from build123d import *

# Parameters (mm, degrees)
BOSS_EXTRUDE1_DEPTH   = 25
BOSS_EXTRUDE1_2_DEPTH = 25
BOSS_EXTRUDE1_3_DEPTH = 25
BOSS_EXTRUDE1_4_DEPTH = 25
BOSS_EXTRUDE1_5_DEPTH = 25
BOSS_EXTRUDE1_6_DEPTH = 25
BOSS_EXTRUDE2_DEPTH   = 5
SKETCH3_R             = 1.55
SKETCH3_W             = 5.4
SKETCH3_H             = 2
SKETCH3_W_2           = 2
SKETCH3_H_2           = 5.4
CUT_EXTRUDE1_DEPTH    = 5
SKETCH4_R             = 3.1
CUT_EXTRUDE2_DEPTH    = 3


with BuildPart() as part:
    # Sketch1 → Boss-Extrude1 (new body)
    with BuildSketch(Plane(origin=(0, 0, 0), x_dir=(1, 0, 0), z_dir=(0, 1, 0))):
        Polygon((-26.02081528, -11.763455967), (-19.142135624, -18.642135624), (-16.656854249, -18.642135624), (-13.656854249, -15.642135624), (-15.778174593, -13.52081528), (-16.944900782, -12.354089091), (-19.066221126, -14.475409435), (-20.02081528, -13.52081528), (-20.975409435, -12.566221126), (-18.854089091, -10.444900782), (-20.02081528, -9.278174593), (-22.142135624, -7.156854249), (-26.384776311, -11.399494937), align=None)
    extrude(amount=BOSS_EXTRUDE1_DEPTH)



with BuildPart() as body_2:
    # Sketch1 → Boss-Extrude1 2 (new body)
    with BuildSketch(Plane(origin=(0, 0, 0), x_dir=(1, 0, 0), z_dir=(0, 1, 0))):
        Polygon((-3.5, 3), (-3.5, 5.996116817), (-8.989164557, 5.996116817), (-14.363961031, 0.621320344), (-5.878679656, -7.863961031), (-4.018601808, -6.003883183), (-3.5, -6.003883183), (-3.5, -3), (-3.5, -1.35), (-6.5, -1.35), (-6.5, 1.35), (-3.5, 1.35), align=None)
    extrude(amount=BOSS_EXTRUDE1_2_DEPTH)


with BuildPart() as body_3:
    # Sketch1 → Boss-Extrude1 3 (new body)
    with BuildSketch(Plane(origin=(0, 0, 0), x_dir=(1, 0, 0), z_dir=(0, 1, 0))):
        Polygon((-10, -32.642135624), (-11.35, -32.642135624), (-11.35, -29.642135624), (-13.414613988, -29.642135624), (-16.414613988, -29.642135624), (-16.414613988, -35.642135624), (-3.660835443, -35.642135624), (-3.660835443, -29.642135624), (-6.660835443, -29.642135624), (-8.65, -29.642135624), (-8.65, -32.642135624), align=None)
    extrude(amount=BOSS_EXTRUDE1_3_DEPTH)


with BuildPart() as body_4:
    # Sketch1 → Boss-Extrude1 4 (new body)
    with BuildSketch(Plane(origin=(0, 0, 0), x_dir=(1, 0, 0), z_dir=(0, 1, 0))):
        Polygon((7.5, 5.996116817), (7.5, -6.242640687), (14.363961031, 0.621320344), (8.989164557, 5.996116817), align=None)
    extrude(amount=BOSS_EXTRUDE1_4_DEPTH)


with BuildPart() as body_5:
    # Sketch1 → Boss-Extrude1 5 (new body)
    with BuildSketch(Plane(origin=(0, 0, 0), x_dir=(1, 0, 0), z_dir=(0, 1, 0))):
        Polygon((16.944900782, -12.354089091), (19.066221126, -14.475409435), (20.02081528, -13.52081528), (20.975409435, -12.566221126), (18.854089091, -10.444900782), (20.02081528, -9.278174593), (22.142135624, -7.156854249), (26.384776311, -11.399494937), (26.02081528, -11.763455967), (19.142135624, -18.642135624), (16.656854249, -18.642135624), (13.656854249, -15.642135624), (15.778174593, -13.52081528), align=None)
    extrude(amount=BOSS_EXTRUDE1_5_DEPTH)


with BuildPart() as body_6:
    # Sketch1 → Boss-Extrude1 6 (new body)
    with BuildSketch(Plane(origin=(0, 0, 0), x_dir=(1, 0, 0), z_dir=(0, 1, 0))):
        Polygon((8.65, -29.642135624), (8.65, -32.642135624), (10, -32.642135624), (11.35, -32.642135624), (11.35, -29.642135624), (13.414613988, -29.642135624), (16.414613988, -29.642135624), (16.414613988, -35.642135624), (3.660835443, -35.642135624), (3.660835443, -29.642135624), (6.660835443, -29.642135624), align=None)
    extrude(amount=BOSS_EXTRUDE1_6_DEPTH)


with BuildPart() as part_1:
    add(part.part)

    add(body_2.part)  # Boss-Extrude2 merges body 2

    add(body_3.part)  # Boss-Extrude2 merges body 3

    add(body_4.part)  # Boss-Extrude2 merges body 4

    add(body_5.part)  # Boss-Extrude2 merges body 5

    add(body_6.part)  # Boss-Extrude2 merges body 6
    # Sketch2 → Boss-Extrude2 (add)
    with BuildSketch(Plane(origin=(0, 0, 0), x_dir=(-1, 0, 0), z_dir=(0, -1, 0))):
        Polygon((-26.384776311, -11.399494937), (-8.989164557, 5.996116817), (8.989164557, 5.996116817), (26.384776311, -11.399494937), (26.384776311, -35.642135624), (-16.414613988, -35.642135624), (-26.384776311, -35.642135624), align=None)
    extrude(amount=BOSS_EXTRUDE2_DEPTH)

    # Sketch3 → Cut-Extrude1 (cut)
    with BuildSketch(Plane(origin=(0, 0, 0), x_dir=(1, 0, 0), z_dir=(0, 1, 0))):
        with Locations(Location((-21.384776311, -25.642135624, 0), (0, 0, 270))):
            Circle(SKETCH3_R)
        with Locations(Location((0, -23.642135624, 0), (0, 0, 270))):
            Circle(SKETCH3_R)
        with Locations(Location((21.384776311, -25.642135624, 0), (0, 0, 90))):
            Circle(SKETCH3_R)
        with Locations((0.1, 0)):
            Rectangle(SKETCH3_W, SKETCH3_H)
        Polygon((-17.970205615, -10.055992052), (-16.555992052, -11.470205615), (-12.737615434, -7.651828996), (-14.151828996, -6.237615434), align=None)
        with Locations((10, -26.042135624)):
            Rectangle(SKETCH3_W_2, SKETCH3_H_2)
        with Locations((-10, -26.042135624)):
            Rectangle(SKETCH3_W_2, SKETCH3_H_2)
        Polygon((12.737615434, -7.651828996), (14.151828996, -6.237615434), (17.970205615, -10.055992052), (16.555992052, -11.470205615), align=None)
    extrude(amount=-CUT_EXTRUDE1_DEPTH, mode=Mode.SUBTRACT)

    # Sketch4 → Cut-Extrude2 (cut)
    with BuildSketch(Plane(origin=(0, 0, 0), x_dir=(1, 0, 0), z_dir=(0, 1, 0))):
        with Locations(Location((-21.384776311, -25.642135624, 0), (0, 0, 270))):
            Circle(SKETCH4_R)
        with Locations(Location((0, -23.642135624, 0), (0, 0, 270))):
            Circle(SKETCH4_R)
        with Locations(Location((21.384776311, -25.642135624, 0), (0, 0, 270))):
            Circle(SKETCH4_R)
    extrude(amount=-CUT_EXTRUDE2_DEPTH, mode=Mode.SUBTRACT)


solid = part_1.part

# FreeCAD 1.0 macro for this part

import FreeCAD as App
import Part
import Sketcher
Q = App.Units.Quantity


def add_polygon(sketch, points):
    """Adds a closed chain of lines whose ends are joined by coincident constraints."""
    first, n = sketch.GeometryCount, len(points)
    for a, b in zip(points, points[1:] + points[:1]):
        sketch.addGeometry(Part.LineSegment(App.Vector(*a, 0), App.Vector(*b, 0)), False)
    for i in range(n):
        sketch.addConstraint(Sketcher.Constraint("Coincident", first + i, 2, first + (i + 1) % n, 1))

doc = App.newDocument("Part")
body = doc.addObject("PartDesign::Body", "Body")

# Sketch on XZ plane
sketch1 = doc.addObject("Sketcher::SketchObject", "Sketch")
body.addObject(sketch1)
sketch1.AttachmentSupport = (doc.XZ_Plane, [""])
sketch1.MapMode = "FlatFace"
add_polygon(sketch1, [(-26.020815, 11.763456), (-19.142136, 18.642136), (-16.656854, 18.642136), (-13.656854, 15.642136), (-16.944901, 12.354089), (-19.066221, 14.475409), (-20.020815, 13.520815), (-20.975409, 12.566221), (-18.854089, 10.444901), (-22.142136, 7.156854), (-26.384776, 11.399495)])  # lines 0-10
sketch1.addConstraint([
    Sketcher.Constraint("Horizontal", 1),
    Sketcher.Constraint("Perpendicular", 0, 2),
    Sketcher.Constraint("Perpendicular", 2, 3),
    Sketcher.Constraint("Perpendicular", 3, 4),
    Sketcher.Constraint("Perpendicular", 4, 5),
    Sketcher.Constraint("Parallel", 5, 6),
    Sketcher.Constraint("Perpendicular", 6, 7),
    Sketcher.Constraint("Perpendicular", 7, 8),
    Sketcher.Constraint("Perpendicular", 8, 9),
    Sketcher.Constraint("Perpendicular", 9, 10),
    Sketcher.Constraint("Equal", 5, 6),
    Sketcher.Constraint("Equal", 4, 7),
    Sketcher.Constraint("Equal", 3, 8),
    Sketcher.Constraint("Angle", 0, Q("45 deg")),
    Sketcher.Constraint("Distance", 4, 3.0),
    Sketcher.Constraint("Distance", 9, 6.0),
    Sketcher.Constraint("DistanceX", 1, 2, 2, 2, 3.0),
    Sketcher.Constraint("DistanceX", 10, 2, 5, 2, 6.0),
    Sketcher.Constraint("Distance", 3, 4.65),
    Sketcher.Constraint("Distance", 5, 1.35),
    Sketcher.Constraint("DistanceX", 3, 2, -1, 1, 16.944901),
    Sketcher.Constraint("DistanceY", -1, 1, 7, 2, 10.444901),
])
pad1 = doc.addObject("PartDesign::Pad", "Pad")
body.addObject(pad1)
pad1.Profile = sketch1
pad1.Length = 25
pad1.Reversed = True
body2 = doc.addObject("PartDesign::Body", "Body001")

# Sketch on XZ plane
sketch2 = doc.addObject("Sketcher::SketchObject", "Sketch001")
body2.addObject(sketch2)
sketch2.AttachmentSupport = (doc.getObject("XZ_Plane001"), [""])
sketch2.MapMode = "FlatFace"
add_polygon(sketch2, [(-3.5, -5.996117), (-8.989165, -5.996117), (-14.363961, -0.62132), (-5.87868, 7.863961), (-4.018602, 6.003883), (-3.5, 6.003883), (-3.5, 1.35), (-6.5, 1.35), (-6.5, -1.35), (-3.5, -1.35)])  # lines 0-9
sketch2.addConstraint([
    Sketcher.Constraint("Horizontal", 0),
    Sketcher.Constraint("Horizontal", 4),
    Sketcher.Constraint("Vertical", 5),
    Sketcher.Constraint("Horizontal", 6),
    Sketcher.Constraint("Vertical", 7),
    Sketcher.Constraint("Horizontal", 8),
    Sketcher.Constraint("Vertical", 9),
    Sketcher.Constraint("Symmetric", 5, 2, 8, 2, -1),
    Sketcher.Constraint("Perpendicular", 1, 2),
    Sketcher.Constraint("Perpendicular", 2, 3),
    Sketcher.Constraint("DistanceX", 6, 2, 6, 1, 3.0),
    Sketcher.Constraint("Angle", 1, Q("135 deg")),
    Sketcher.Constraint("Distance", 2, 12.0),
    Sketcher.Constraint("DistanceY", 7, 2, 7, 1, 2.7),
    Sketcher.Constraint("DistanceY", 0, 2, 3, 2, 12.0),
    Sketcher.Constraint("DistanceX", 4, 2, -1, 1, 3.5),
    Sketcher.Constraint("DistanceX", 4, 1, 4, 2, 0.518602),
    Sketcher.Constraint("Distance", 1, 7.60111),
    Sketcher.Constraint("DistanceY", 5, 2, 5, 1, 4.653883),
])
pad2 = doc.addObject("PartDesign::Pad", "Pad001")
body2.addObject(pad2)
pad2.Profile = sketch2
pad2.Length = 25
pad2.Reversed = True
body3 = doc.addObject("PartDesign::Body", "Body002")

# Sketch on XZ plane
sketch3 = doc.addObject("Sketcher::SketchObject", "Sketch002")
body3.addObject(sketch3)
sketch3.AttachmentSupport = (doc.getObject("XZ_Plane002"), [""])
sketch3.MapMode = "FlatFace"
add_polygon(sketch3, [(-11.35, 32.642136), (-11.35, 29.642136), (-16.414614, 29.642136), (-16.414614, 35.642136), (-3.660835, 35.642136), (-3.660835, 29.642136), (-8.65, 29.642136), (-8.65, 32.642136)])  # lines 0-7
sketch3.addConstraint([
    Sketcher.Constraint("Vertical", 0),
    Sketcher.Constraint("Horizontal", 1),
    Sketcher.Constraint("Vertical", 2),
    Sketcher.Constraint("Horizontal", 3),
    Sketcher.Constraint("Vertical", 4),
    Sketcher.Constraint("Horizontal", 5),
    Sketcher.Constraint("Vertical", 6),
    Sketcher.Constraint("Horizontal", 7),
    Sketcher.Constraint("Horizontal", 1, 2, 4, 2),
    Sketcher.Constraint("DistanceY", 0, 2, 0, 1, 3.0),
    Sketcher.Constraint("DistanceY", 2, 1, 2, 2, 6.0),
    Sketcher.Constraint("DistanceX", 7, 2, 7, 1, 2.7),
    Sketcher.Constraint("DistanceX", 0, 2, -1, 1, 11.35),
    Sketcher.Constraint("DistanceX", 3, 1, 3, 2, 12.753779),
    Sketcher.Constraint("DistanceX", 1, 2, 1, 1, 5.064614),
    Sketcher.Constraint("DistanceY", -1, 1, 0, 2, 29.642136),
])
pad3 = doc.addObject("PartDesign::Pad", "Pad002")
body3.addObject(pad3)
pad3.Profile = sketch3
pad3.Length = 25
pad3.Reversed = True
body4 = doc.addObject("PartDesign::Body", "Body003")

# Sketch on XZ plane
sketch4 = doc.addObject("Sketcher::SketchObject", "Sketch003")
body4.addObject(sketch4)
sketch4.AttachmentSupport = (doc.getObject("XZ_Plane003"), [""])
sketch4.MapMode = "FlatFace"
add_polygon(sketch4, [(7.5, -5.996117), (7.5, 6.242641), (14.363961, -0.62132), (8.989165, -5.996117)])  # lines 0-3
sketch4.addConstraint([
    Sketcher.Constraint("Vertical", 0),
    Sketcher.Constraint("Horizontal", 3),
    Sketcher.Constraint("Perpendicular", 1, 2),
    Sketcher.Constraint("Angle", 1, Q("-45 deg")),
    Sketcher.Constraint("DistanceX", -1, 1, 0, 2, 7.5),
    Sketcher.Constraint("Distance", 2, 7.60111),
    Sketcher.Constraint("DistanceX", 3, 2, 3, 1, 1.489165),
    Sketcher.Constraint("DistanceY", -1, 1, 0, 2, 6.242641),
])
pad4 = doc.addObject("PartDesign::Pad", "Pad003")
body4.addObject(pad4)
pad4.Profile = sketch4
pad4.Length = 25
pad4.Reversed = True
body5 = doc.addObject("PartDesign::Body", "Body004")

# Sketch on XZ plane
sketch5 = doc.addObject("Sketcher::SketchObject", "Sketch004")
body5.addObject(sketch5)
sketch5.AttachmentSupport = (doc.getObject("XZ_Plane004"), [""])
sketch5.MapMode = "FlatFace"
add_polygon(sketch5, [(19.066221, 14.475409), (16.944901, 12.354089), (13.656854, 15.642136), (16.656854, 18.642136), (19.142136, 18.642136), (26.020815, 11.763456), (26.384776, 11.399495), (22.142136, 7.156854), (18.854089, 10.444901), (20.975409, 12.566221), (20.020815, 13.520815)])  # lines 0-10
sketch5.addConstraint([
    Sketcher.Constraint("Horizontal", 3),
    Sketcher.Constraint("Perpendicular", 0, 1),
    Sketcher.Constraint("Perpendicular", 1, 2),
    Sketcher.Constraint("Perpendicular", 2, 4),
    Sketcher.Constraint("Parallel", 4, 5),
    Sketcher.Constraint("Perpendicular", 5, 6),
    Sketcher.Constraint("Perpendicular", 6, 7),
    Sketcher.Constraint("Perpendicular", 7, 8),
    Sketcher.Constraint("Perpendicular", 8, 9),
    Sketcher.Constraint("Parallel", 9, 10),
    Sketcher.Constraint("Equal", 1, 7),
    Sketcher.Constraint("Equal", 0, 8),
    Sketcher.Constraint("Equal", 9, 10),
    Sketcher.Constraint("Angle", 0, Q("-135 deg")),
    Sketcher.Constraint("Distance", 0, 3.0),
    Sketcher.Constraint("Distance", 6, 6.0),
    Sketcher.Constraint("DistanceX", 1, 2, 2, 2, 3.0),
    Sketcher.Constraint("DistanceX", 3, 2, 6, 2, 3.0),
    Sketcher.Constraint("Distance", 1, 4.65),
    Sketcher.Constraint("DistanceX", -1, 1, 0, 2, 16.944901),
    Sketcher.Constraint("DistanceY", -1, 1, 7, 2, 10.444901),
    Sketcher.Constraint("DistanceY", 6, 2, 4, 2, 4.606602),
])
pad5 = doc.addObject("PartDesign::Pad", "Pad004")
body5.addObject(pad5)
pad5.Profile = sketch5
pad5.Length = 25
pad5.Reversed = True
body6 = doc.addObject("PartDesign::Body", "Body005")

# Sketch on XZ plane
sketch6 = doc.addObject("Sketcher::SketchObject", "Sketch005")
body6.addObject(sketch6)
sketch6.AttachmentSupport = (doc.getObject("XZ_Plane005"), [""])
sketch6.MapMode = "FlatFace"
add_polygon(sketch6, [(8.65, 32.642136), (8.65, 29.642136), (3.660835, 29.642136), (3.660835, 35.642136), (16.414614, 35.642136), (16.414614, 29.642136), (11.35, 29.642136), (11.35, 32.642136)])  # lines 0-7
sketch6.addConstraint([
    Sketcher.Constraint("Vertical", 0),
    Sketcher.Constraint("Horizontal", 1),
    Sketcher.Constraint("Vertical", 2),
    Sketcher.Constraint("Horizontal", 3),
    Sketcher.Constraint("Vertical", 4),
    Sketcher.Constraint("Horizontal", 5),
    Sketcher.Constraint("Vertical", 6),
    Sketcher.Constraint("Horizontal", 7),
    Sketcher.Constraint("Horizontal", 1, 2, 4, 2),
    Sketcher.Constraint("DistanceY", 0, 2, 0, 1, 3.0),
    Sketcher.Constraint("DistanceY", 2, 1, 2, 2, 6.0),
    Sketcher.Constraint("DistanceX", 7, 2, 7, 1, 2.7),
    Sketcher.Constraint("DistanceX", -1, 1, 0, 2, 8.65),
    Sketcher.Constraint("DistanceX", 3, 1, 3, 2, 12.753779),
    Sketcher.Constraint("DistanceX", 1, 2, 1, 1, 4.989165),
    Sketcher.Constraint("DistanceY", -1, 1, 0, 2, 29.642136),
])
pad6 = doc.addObject("PartDesign::Pad", "Pad005")
body6.addObject(pad6)
pad6.Profile = sketch6
pad6.Length = 25
pad6.Reversed = True
body.AllowCompound = True
doc.recompute()

boolean = doc.addObject("PartDesign::Boolean", "Boolean")
body.addObject(boolean)
boolean.Type = "Fuse"
boolean.addObjects([body2])
doc.recompute()

boolean2 = doc.addObject("PartDesign::Boolean", "Boolean001")
body.addObject(boolean2)
boolean2.Type = "Fuse"
boolean2.addObjects([body3])
doc.recompute()

boolean3 = doc.addObject("PartDesign::Boolean", "Boolean002")
body.addObject(boolean3)
boolean3.Type = "Fuse"
boolean3.addObjects([body4])
doc.recompute()

boolean4 = doc.addObject("PartDesign::Boolean", "Boolean003")
body.addObject(boolean4)
boolean4.Type = "Fuse"
boolean4.addObjects([body5])
doc.recompute()

boolean5 = doc.addObject("PartDesign::Boolean", "Boolean004")
body.addObject(boolean5)
boolean5.Type = "Fuse"
boolean5.addObjects([body6])

# Sketch on XZ plane
sketch7 = doc.addObject("Sketcher::SketchObject", "Sketch006")
body.addObject(sketch7)
sketch7.AttachmentSupport = (doc.XZ_Plane, [""])
sketch7.MapMode = "FlatFace"
add_polygon(sketch7, [(8.989165, -5.996117), (26.384776, 11.399495), (26.384776, 35.642136), (-26.384776, 35.642136), (-26.384776, 11.399495), (-8.989165, -5.996117)])  # lines 0-5
sketch7.addConstraint([
    Sketcher.Constraint("Vertical", 1),
    Sketcher.Constraint("Horizontal", 2),
    Sketcher.Constraint("Vertical", 3),
    Sketcher.Constraint("Horizontal", 5),
    Sketcher.Constraint("Symmetric", 0, 2, 3, 2, -2),
    Sketcher.Constraint("Perpendicular", 0, 4),
    Sketcher.Constraint("Equal", 0, 4),
    Sketcher.Constraint("DistanceX", 5, 1, 5, 2, 17.978329),
    Sketcher.Constraint("DistanceY", 1, 1, 1, 2, 24.242641),
    Sketcher.Constraint("Distance", 0, 24.60111),
    Sketcher.Constraint("DistanceY", -1, 1, 0, 2, 11.399495),
])
pad7 = doc.addObject("PartDesign::Pad", "Pad006")
body.addObject(pad7)
pad7.Profile = sketch7
pad7.Length = 5

# Sketch on XZ plane
sketch8 = doc.addObject("Sketcher::SketchObject", "Sketch007")
body.addObject(sketch8)
sketch8.AttachmentSupport = (doc.XZ_Plane, [""])
sketch8.MapMode = "FlatFace"
sketch8.addGeometry(Part.Circle(App.Vector(-21.384776, 25.642136, 0), App.Vector(0, 0, 1), 1.55), False)  # 0
sketch8.addGeometry(Part.Circle(App.Vector(0, 23.642136, 0), App.Vector(0, 0, 1), 1.55), False)  # 1
sketch8.addGeometry(Part.Circle(App.Vector(21.384776, 25.642136, 0), App.Vector(0, 0, 1), 1.55), False)  # 2
add_polygon(sketch8, [(-2.6, -1), (-2.6, 1), (2.8, 1), (2.8, -1)])  # lines 3-6
add_polygon(sketch8, [(-17.970206, 10.055992), (-16.555992, 11.470206), (-12.737615, 7.651829), (-14.151829, 6.237615)])  # lines 7-10
add_polygon(sketch8, [(9, 23.342136), (9, 28.742136), (11, 28.742136), (11, 23.342136)])  # lines 11-14
add_polygon(sketch8, [(-11, 23.342136), (-11, 28.742136), (-9, 28.742136), (-9, 23.342136)])  # lines 15-18
add_polygon(sketch8, [(14.151829, 6.237615), (12.737615, 7.651829), (16.555992, 11.470206), (17.970206, 10.055992)])  # lines 19-22
sketch8.addConstraint([
    Sketcher.Constraint("Vertical", 3),
    Sketcher.Constraint("Horizontal", 4),
    Sketcher.Constraint("Vertical", 5),
    Sketcher.Constraint("Horizontal", 6),
    Sketcher.Constraint("Vertical", 11),
    Sketcher.Constraint("Horizontal", 12),
    Sketcher.Constraint("Vertical", 13),
    Sketcher.Constraint("Horizontal", 14),
    Sketcher.Constraint("Vertical", 15),
    Sketcher.Constraint("Horizontal", 16),
    Sketcher.Constraint("Vertical", 17),
    Sketcher.Constraint("Horizontal", 18),
    Sketcher.Constraint("Equal", 0, 1),
    Sketcher.Constraint("Equal", 1, 2),
    Sketcher.Constraint("Symmetric", 0, 3, 2, 3, -2),
    Sketcher.Constraint("Symmetric", 12, 2, 15, 2, -2),
    Sketcher.Constraint("Symmetric", 14, 2, 17, 2, -2),
    Sketcher.Constraint("Symmetric", 8, 2, 19, 2, -2),
    Sketcher.Constraint("Symmetric", 7, 2, 20, 2, -2),
    Sketcher.Constraint("Symmetric", 10, 2, 21, 2, -2),
    Sketcher.Constraint("Symmetric", 9, 2, 22, 2, -2),
    Sketcher.Constraint("PointOnObject", 1, 3, -2),
    Sketcher.Constraint("Perpendicular", 7, 8),
    Sketcher.Constraint("Perpendicular", 8, 9),
    Sketcher.Constraint("Perpendicular", 9, 10),
    Sketcher.Constraint("Parallel", 10, 19),
    Sketcher.Constraint("Equal", 18, 3),
    Sketcher.Constraint("Equal", 6, 11),
    Sketcher.Constraint("Diameter", 0, 3.1),
    Sketcher.Constraint("DistanceX", 12, 1, 12, 2, 2.0),
    Sketcher.Constraint("Distance", 7, 2.0),
    Sketcher.Constraint("DistanceX", 4, 1, 4, 2, 5.4),
    Sketcher.Constraint("DistanceY", -1, 1, 3, 2, 1.0),
    Sketcher.Constraint("DistanceX", -1, 1, 11, 2, 9.0),
    Sketcher.Constraint("DistanceY", 1, 3, 0, 3, 2.0),
    Sketcher.Constraint("Distance", 8, 5.4),
    Sketcher.Constraint("DistanceX", 3, 2, -1, 1, 2.6),
    Sketcher.Constraint("DistanceY", 1, 3, 11, 2, 5.1),
    Sketcher.Constraint("DistanceY", -1, 1, 8, 2, 7.651829),
    Sketcher.Constraint("DistanceX", 9, 2, -1, 1, 14.151829),
    Sketcher.Constraint("DistanceY", 7, 2, 0, 3, 14.17193),
    Sketcher.Constraint("DistanceX", 0, 3, 10, 2, 3.414571),
])
pocket1 = doc.addObject("PartDesign::Pocket", "Pocket")
body.addObject(pocket1)
pocket1.Profile = sketch8
pocket1.Length = 5
pocket1.Reversed = True

# Sketch on XZ plane
sketch9 = doc.addObject("Sketcher::SketchObject", "Sketch008")
body.addObject(sketch9)
sketch9.AttachmentSupport = (doc.XZ_Plane, [""])
sketch9.MapMode = "FlatFace"
sketch9.addGeometry([
    Part.Circle(App.Vector(-21.384776, 25.642136, 0), App.Vector(0, 0, 1), 3.1),
    Part.Circle(App.Vector(0, 23.642136, 0), App.Vector(0, 0, 1), 3.1),
    Part.Circle(App.Vector(21.384776, 25.642136, 0), App.Vector(0, 0, 1), 3.1),
], False)
sketch9.addConstraint([
    Sketcher.Constraint("Equal", 0, 1),
    Sketcher.Constraint("Equal", 1, 2),
    Sketcher.Constraint("Symmetric", 0, 3, 2, 3, -2),
    Sketcher.Constraint("PointOnObject", 1, 3, -2),
    Sketcher.Constraint("Diameter", 0, 6.2),
    Sketcher.Constraint("DistanceY", 1, 3, 0, 3, 2.0),
    Sketcher.Constraint("DistanceX", 0, 3, -1, 1, 21.384776),
    Sketcher.Constraint("DistanceY", -1, 1, 0, 3, 25.642136),
])
pocket2 = doc.addObject("PartDesign::Pocket", "Pocket001")
body.addObject(pocket2)
pocket2.Profile = sketch9
pocket2.Length = 3
pocket2.Reversed = True

doc.recompute()
